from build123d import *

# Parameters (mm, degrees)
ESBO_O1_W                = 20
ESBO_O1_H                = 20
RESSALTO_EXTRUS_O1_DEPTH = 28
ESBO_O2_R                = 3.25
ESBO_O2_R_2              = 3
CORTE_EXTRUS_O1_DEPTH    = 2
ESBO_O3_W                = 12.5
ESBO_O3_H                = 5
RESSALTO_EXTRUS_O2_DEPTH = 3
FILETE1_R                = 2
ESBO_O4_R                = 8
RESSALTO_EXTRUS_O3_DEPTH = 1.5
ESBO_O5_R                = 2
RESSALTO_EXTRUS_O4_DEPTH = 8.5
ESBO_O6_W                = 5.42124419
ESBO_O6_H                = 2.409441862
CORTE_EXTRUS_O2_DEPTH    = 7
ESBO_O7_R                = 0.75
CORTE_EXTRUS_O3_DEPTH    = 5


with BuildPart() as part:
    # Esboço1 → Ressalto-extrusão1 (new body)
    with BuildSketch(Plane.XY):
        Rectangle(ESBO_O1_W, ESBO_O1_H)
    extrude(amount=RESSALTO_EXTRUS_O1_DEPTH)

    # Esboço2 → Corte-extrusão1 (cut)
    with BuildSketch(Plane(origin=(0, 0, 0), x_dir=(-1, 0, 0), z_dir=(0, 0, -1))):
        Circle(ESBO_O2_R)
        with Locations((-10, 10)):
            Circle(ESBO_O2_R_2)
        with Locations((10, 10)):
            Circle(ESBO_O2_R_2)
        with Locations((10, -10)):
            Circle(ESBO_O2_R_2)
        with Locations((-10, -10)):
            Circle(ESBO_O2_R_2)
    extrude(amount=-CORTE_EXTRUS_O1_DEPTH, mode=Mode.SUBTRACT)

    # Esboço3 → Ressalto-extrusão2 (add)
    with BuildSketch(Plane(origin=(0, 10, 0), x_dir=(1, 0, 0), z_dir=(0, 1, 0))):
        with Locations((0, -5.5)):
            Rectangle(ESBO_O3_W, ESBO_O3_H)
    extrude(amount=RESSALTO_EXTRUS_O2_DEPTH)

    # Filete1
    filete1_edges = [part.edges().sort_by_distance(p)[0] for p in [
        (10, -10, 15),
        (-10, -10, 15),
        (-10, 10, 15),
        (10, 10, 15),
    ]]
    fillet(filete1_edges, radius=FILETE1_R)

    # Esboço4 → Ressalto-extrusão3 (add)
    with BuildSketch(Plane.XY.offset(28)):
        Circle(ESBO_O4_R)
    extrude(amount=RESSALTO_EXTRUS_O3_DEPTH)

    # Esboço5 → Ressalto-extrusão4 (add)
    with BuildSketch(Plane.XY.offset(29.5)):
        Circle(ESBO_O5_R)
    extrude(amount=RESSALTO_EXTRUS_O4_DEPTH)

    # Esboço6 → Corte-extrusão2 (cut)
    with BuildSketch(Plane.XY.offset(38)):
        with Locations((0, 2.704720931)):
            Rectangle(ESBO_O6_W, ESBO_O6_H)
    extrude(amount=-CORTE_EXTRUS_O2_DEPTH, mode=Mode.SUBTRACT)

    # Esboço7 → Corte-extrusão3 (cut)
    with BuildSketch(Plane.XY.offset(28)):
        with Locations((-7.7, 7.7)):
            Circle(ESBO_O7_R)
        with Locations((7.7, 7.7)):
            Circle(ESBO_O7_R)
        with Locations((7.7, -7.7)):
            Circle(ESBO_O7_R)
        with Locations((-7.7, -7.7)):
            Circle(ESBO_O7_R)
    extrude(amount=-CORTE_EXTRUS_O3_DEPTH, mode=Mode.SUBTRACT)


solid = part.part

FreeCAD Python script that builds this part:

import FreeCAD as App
import Part
import Sketcher
from FreeCAD import Vector
Q = App.Units.Quantity


def edges_at(feature, points):
    """Names of the edges that pass closest to the given points."""
    edges = feature.Shape.Edges
    near = lambda p: min(range(len(edges)), key=lambda i: edges[i].distToShape(Part.Vertex(*p))[0])
    return sorted({f"Edge{near(p) + 1}" for p in points})


def add_polygon(sketch, points):
    """Adds a closed chain of lines whose ends are joined by coincident constraints."""
    first, n = sketch.GeometryCount, len(points)
    for a, b in zip(points, points[1:] + points[:1]):
        sketch.addGeometry(Part.LineSegment(App.Vector(*a, 0), App.Vector(*b, 0)), False)
    for i in range(n):
        sketch.addConstraint(Sketcher.Constraint("Coincident", first + i, 2, first + (i + 1) % n, 1))

doc = App.newDocument("Part")
body = doc.addObject("PartDesign::Body", "Body")

# Sketch on XY plane
sketch1 = doc.addObject("Sketcher::SketchObject", "Sketch")
body.addObject(sketch1)
sketch1.AttachmentSupport = (doc.XY_Plane, [""])
sketch1.MapMode = "FlatFace"
add_polygon(sketch1, [(-10, 10), (-10, -10), (10, -10), (10, 10)])  # lines 0-3
sketch1.addConstraint(Sketcher.Constraint("Vertical", 0))
sketch1.addConstraint(Sketcher.Constraint("Horizontal", 1))
sketch1.addConstraint(Sketcher.Constraint("Vertical", 2))
sketch1.addConstraint(Sketcher.Constraint("Horizontal", 3))
sketch1.addConstraint(Sketcher.Constraint("Symmetric", 0, 2, 2, 2, -1, 1))
sketch1.addConstraint(Sketcher.Constraint("Equal", 3, 0))
sketch1.addConstraint(Sketcher.Constraint("DistanceX", 1, 1, 1, 2, Q("20 mm")))
pad1 = doc.addObject("PartDesign::Pad", "Pad")
body.addObject(pad1)
pad1.Profile = sketch1
pad1.Length = 28

# Sketch on XY plane
sketch2 = doc.addObject("Sketcher::SketchObject", "Sketch001")
body.addObject(sketch2)
sketch2.AttachmentSupport = (doc.XY_Plane, [""])
sketch2.MapMode = "FlatFace"
sketch2.addGeometry(Part.Circle(Vector(0, 0, 0), Vector(0, 0, 1), 3.2), False)
sketch2.addGeometry(Part.Circle(Vector(10, 10, 0), Vector(0, 0, 1), 3), False)
sketch2.addGeometry(Part.Circle(Vector(-10, 10, 0), Vector(0, 0, 1), 3), False)
sketch2.addGeometry(Part.Circle(Vector(-10, -10, 0), Vector(0, 0, 1), 3), False)
sketch2.addGeometry(Part.Circle(Vector(10, -10, 0), Vector(0, 0, 1), 3), False)
sketch2.addConstraint(Sketcher.Constraint("Coincident", 0, 3, -1, 1))
sketch2.addConstraint(Sketcher.Constraint("Equal", 1, 2))
sketch2.addConstraint(Sketcher.Constraint("Equal", 2, 3))
sketch2.addConstraint(Sketcher.Constraint("Equal", 3, 4))
sketch2.addConstraint(Sketcher.Constraint("Symmetric", 1, 3, 3, 3, -1, 1))
sketch2.addConstraint(Sketcher.Constraint("Symmetric", 2, 3, 4, 3, -1, 1))
sketch2.addConstraint(Sketcher.Constraint("Symmetric", 1, 3, 2, 3, -2))
sketch2.addConstraint(Sketcher.Constraint("Diameter", 1, Q("6 mm")))
sketch2.addConstraint(Sketcher.Constraint("Diameter", 0, Q("6.5 mm")))
sketch2.addConstraint(Sketcher.Constraint("DistanceX", -1, 1, 1, 3, Q("10 mm")))
sketch2.addConstraint(Sketcher.Constraint("DistanceY", -1, 1, 1, 3, Q("10 mm")))
pocket1 = doc.addObject("PartDesign::Pocket", "Pocket")
body.addObject(pocket1)
pocket1.Profile = sketch2
pocket1.Length = 2
pocket1.Reversed = True

# Sketch on XZ plane
sketch3 = doc.addObject("Sketcher::SketchObject", "Sketch002")
body.addObject(sketch3)
sketch3.AttachmentSupport = (doc.XZ_Plane, [""])
sketch3.MapMode = "FlatFace"
sketch3.AttachmentOffset = App.Placement(Vector(0, 0, -10), App.Rotation())
add_polygon(sketch3, [(-6, 3), (-6, 8), (6, 8), (6, 3)])  # lines 0-3
sketch3.addConstraint(Sketcher.Constraint("Vertical", 0))
sketch3.addConstraint(Sketcher.Constraint("Horizontal", 1))
sketch3.addConstraint(Sketcher.Constraint("Vertical", 2))
sketch3.addConstraint(Sketcher.Constraint("Horizontal", 3))
sketch3.addConstraint(Sketcher.Constraint("DistanceY", 0, 1, 0, 2, Q("5 mm")))
sketch3.addConstraint(Sketcher.Constraint("DistanceX", 1, 1, 1, 2, Q("12.5 mm")))
sketch3.addConstraint(Sketcher.Constraint("DistanceY", -1, 1, 0, 2, Q("8 mm")))
sketch3.addConstraint(Sketcher.Constraint("DistanceX", 0, 2, -1, 1, Q("6.25 mm")))
pad2 = doc.addObject("PartDesign::Pad", "Pad001")
body.addObject(pad2)
pad2.Profile = sketch3
pad2.Length = 3
pad2.Reversed = True
doc.recompute()

fillet = doc.addObject("PartDesign::Fillet", "Fillet")
body.addObject(fillet)
fillet.Base = (pad2, edges_at(pad2, [
    (10, -10, 15),
    (-10, -10, 15),
    (-10, 10, 15),
    (10, 10, 15),
]))
fillet.Radius = 2

# Sketch on XY plane
sketch4 = doc.addObject("Sketcher::SketchObject", "Sketch003")
body.addObject(sketch4)
sketch4.AttachmentSupport = (doc.XY_Plane, [""])
sketch4.MapMode = "FlatFace"
sketch4.AttachmentOffset = App.Placement(Vector(0, 0, 28), App.Rotation())
sketch4.addGeometry(Part.Circle(Vector(0, 0, 0), Vector(0, 0, 1), 8), False)
sketch4.addConstraint(Sketcher.Constraint("Coincident", 0, 3, -1, 1))
sketch4.addConstraint(Sketcher.Constraint("Diameter", 0, Q("16 mm")))
pad3 = doc.addObject("PartDesign::Pad", "Pad002")
body.addObject(pad3)
pad3.Profile = sketch4
pad3.Length = 1.5

# Sketch on XY plane
sketch5 = doc.addObject("Sketcher::SketchObject", "Sketch004")
body.addObject(sketch5)
sketch5.AttachmentSupport = (doc.XY_Plane, [""])
sketch5.MapMode = "FlatFace"
sketch5.AttachmentOffset = App.Placement(Vector(0, 0, 29.5), App.Rotation())
sketch5.addGeometry(Part.Circle(Vector(0, 0, 0), Vector(0, 0, 1), 2), False)
sketch5.addConstraint(Sketcher.Constraint("Coincident", 0, 3, -1, 1))
sketch5.addConstraint(Sketcher.Constraint("Diameter", 0, Q("4 mm")))
pad4 = doc.addObject("PartDesign::Pad", "Pad003")
body.addObject(pad4)
pad4.Profile = sketch5
pad4.Length = 8.5

# Sketch on XY plane
sketch6 = doc.addObject("Sketcher::SketchObject", "Sketch005")
body.addObject(sketch6)
sketch6.AttachmentSupport = (doc.XY_Plane, [""])
sketch6.MapMode = "FlatFace"
sketch6.AttachmentOffset = App.Placement(Vector(0, 0, 38), App.Rotation())
add_polygon(sketch6, [(-2.7, 3.9), (-2.7, 1.5), (2.7, 1.5), (2.7, 3.9)])  # lines 0-3
sketch6.addConstraint(Sketcher.Constraint("Vertical", 0))
sketch6.addConstraint(Sketcher.Constraint("Horizontal", 1))
sketch6.addConstraint(Sketcher.Constraint("Vertical", 2))
sketch6.addConstraint(Sketcher.Constraint("Horizontal", 3))
sketch6.addConstraint(Sketcher.Constraint("DistanceY", -1, 1, 0, 2, Q("1.5 mm")))
sketch6.addConstraint(Sketcher.Constraint("DistanceY", 0, 2, 0, 1, Q("2.409442 mm")))
sketch6.addConstraint(Sketcher.Constraint("DistanceX", 1, 1, 1, 2, Q("5.421244 mm")))
sketch6.addConstraint(Sketcher.Constraint("DistanceX", 0, 2, -1, 1, Q("2.710622 mm")))
pocket2 = doc.addObject("PartDesign::Pocket", "Pocket001")
body.addObject(pocket2)
pocket2.Profile = sketch6
pocket2.Length = 7

# Sketch on XY plane
sketch7 = doc.addObject("Sketcher::SketchObject", "Sketch006")
body.addObject(sketch7)
sketch7.AttachmentSupport = (doc.XY_Plane, [""])
sketch7.MapMode = "FlatFace"
sketch7.AttachmentOffset = App.Placement(Vector(0, 0, 28), App.Rotation())
sketch7.addGeometry(Part.Circle(Vector(-7.7, 7.7, 0), Vector(0, 0, 1), 0.8), False)
sketch7.addGeometry(Part.Circle(Vector(7.7, 7.7, 0), Vector(0, 0, 1), 0.8), False)
sketch7.addGeometry(Part.Circle(Vector(7.7, -7.7, 0), Vector(0, 0, 1), 0.8), False)
sketch7.addGeometry(Part.Circle(Vector(-7.7, -7.7, 0), Vector(0, 0, 1), 0.8), False)
sketch7.addConstraint(Sketcher.Constraint("Equal", 0, 1))
sketch7.addConstraint(Sketcher.Constraint("Equal", 1, 2))
sketch7.addConstraint(Sketcher.Constraint("Equal", 2, 3))
sketch7.addConstraint(Sketcher.Constraint("Symmetric", 0, 3, 2, 3, -1, 1))
sketch7.addConstraint(Sketcher.Constraint("Symmetric", 1, 3, 3, 3, -1, 1))
sketch7.addConstraint(Sketcher.Constraint("Symmetric", 0, 3, 1, 3, -2))
sketch7.addConstraint(Sketcher.Constraint("Diameter", 0, Q("1.5 mm")))
sketch7.addConstraint(Sketcher.Constraint("DistanceX", 0, 3, -1, 1, Q("7.7 mm")))
sketch7.addConstraint(Sketcher.Constraint("DistanceY", -1, 1, 0, 3, Q("7.7 mm")))
pocket3 = doc.addObject("PartDesign::Pocket", "Pocket002")
body.addObject(pocket3)
pocket3.Profile = sketch7
pocket3.Length = 5

doc.recompute()
